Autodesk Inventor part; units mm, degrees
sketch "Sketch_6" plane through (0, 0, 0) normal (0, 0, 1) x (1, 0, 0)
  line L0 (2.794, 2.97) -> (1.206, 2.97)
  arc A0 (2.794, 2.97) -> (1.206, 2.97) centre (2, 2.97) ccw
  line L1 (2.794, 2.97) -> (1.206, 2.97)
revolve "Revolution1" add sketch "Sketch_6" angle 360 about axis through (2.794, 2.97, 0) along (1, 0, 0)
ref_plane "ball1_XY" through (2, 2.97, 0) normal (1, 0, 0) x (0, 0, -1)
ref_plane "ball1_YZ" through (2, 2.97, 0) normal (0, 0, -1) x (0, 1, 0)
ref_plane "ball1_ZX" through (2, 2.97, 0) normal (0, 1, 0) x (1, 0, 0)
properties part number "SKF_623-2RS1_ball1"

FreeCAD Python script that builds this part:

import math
import FreeCAD as App
import Part
import Sketcher

V = App.Vector

doc = App.newDocument("Part")
body = doc.addObject("PartDesign::Body", "Body")

# Sketch on XY plane
sketch1 = body.newObject("Sketcher::SketchObject", "Sketch")
sketch1.AttachmentSupport = (doc.getObject("XY_Plane"), [""])
sketch1.MapMode = "FlatFace"
sketch1.addGeometry([
    Part.LineSegment(V(1.206, 2.97, 0), V(2.794, 2.97, 0)),
    Part.ArcOfCircle(Part.Circle(V(2, 2.97, 0), V(0, 0, 1), 0.794), math.radians(0), math.radians(180)),
], False)
sketch1.addGeometry(Part.LineSegment(V(1.206, 2.97, 0), V(2.794, 2.97, 0)), True)  # axis
sketch1.addConstraint([
    Sketcher.Constraint("Coincident", 0, 1, 1, 2),
    Sketcher.Constraint("Coincident", 1, 1, 0, 2),
    Sketcher.Constraint("Horizontal", 0),
    Sketcher.Constraint("Horizontal", 2),
    Sketcher.Constraint("Coincident", 2, 1, 0, 1),
    Sketcher.Constraint("Horizontal", 1, 3, 0, 1),
    Sketcher.Constraint("Equal", 0, 2),
    Sketcher.Constraint("DistanceX", -1, 1, 1, 3, 2.0),
    Sketcher.Constraint("Radius", 1, 0.794),
    Sketcher.Constraint("DistanceY", -1, 1, 1, 3, 2.97),
])
revolution = body.newObject("PartDesign::Revolution", "Revolution")
revolution.Profile = sketch1
revolution.ReferenceAxis = (sketch1, ["Axis0"])
revolution.Angle = 360

doc.recompute()
